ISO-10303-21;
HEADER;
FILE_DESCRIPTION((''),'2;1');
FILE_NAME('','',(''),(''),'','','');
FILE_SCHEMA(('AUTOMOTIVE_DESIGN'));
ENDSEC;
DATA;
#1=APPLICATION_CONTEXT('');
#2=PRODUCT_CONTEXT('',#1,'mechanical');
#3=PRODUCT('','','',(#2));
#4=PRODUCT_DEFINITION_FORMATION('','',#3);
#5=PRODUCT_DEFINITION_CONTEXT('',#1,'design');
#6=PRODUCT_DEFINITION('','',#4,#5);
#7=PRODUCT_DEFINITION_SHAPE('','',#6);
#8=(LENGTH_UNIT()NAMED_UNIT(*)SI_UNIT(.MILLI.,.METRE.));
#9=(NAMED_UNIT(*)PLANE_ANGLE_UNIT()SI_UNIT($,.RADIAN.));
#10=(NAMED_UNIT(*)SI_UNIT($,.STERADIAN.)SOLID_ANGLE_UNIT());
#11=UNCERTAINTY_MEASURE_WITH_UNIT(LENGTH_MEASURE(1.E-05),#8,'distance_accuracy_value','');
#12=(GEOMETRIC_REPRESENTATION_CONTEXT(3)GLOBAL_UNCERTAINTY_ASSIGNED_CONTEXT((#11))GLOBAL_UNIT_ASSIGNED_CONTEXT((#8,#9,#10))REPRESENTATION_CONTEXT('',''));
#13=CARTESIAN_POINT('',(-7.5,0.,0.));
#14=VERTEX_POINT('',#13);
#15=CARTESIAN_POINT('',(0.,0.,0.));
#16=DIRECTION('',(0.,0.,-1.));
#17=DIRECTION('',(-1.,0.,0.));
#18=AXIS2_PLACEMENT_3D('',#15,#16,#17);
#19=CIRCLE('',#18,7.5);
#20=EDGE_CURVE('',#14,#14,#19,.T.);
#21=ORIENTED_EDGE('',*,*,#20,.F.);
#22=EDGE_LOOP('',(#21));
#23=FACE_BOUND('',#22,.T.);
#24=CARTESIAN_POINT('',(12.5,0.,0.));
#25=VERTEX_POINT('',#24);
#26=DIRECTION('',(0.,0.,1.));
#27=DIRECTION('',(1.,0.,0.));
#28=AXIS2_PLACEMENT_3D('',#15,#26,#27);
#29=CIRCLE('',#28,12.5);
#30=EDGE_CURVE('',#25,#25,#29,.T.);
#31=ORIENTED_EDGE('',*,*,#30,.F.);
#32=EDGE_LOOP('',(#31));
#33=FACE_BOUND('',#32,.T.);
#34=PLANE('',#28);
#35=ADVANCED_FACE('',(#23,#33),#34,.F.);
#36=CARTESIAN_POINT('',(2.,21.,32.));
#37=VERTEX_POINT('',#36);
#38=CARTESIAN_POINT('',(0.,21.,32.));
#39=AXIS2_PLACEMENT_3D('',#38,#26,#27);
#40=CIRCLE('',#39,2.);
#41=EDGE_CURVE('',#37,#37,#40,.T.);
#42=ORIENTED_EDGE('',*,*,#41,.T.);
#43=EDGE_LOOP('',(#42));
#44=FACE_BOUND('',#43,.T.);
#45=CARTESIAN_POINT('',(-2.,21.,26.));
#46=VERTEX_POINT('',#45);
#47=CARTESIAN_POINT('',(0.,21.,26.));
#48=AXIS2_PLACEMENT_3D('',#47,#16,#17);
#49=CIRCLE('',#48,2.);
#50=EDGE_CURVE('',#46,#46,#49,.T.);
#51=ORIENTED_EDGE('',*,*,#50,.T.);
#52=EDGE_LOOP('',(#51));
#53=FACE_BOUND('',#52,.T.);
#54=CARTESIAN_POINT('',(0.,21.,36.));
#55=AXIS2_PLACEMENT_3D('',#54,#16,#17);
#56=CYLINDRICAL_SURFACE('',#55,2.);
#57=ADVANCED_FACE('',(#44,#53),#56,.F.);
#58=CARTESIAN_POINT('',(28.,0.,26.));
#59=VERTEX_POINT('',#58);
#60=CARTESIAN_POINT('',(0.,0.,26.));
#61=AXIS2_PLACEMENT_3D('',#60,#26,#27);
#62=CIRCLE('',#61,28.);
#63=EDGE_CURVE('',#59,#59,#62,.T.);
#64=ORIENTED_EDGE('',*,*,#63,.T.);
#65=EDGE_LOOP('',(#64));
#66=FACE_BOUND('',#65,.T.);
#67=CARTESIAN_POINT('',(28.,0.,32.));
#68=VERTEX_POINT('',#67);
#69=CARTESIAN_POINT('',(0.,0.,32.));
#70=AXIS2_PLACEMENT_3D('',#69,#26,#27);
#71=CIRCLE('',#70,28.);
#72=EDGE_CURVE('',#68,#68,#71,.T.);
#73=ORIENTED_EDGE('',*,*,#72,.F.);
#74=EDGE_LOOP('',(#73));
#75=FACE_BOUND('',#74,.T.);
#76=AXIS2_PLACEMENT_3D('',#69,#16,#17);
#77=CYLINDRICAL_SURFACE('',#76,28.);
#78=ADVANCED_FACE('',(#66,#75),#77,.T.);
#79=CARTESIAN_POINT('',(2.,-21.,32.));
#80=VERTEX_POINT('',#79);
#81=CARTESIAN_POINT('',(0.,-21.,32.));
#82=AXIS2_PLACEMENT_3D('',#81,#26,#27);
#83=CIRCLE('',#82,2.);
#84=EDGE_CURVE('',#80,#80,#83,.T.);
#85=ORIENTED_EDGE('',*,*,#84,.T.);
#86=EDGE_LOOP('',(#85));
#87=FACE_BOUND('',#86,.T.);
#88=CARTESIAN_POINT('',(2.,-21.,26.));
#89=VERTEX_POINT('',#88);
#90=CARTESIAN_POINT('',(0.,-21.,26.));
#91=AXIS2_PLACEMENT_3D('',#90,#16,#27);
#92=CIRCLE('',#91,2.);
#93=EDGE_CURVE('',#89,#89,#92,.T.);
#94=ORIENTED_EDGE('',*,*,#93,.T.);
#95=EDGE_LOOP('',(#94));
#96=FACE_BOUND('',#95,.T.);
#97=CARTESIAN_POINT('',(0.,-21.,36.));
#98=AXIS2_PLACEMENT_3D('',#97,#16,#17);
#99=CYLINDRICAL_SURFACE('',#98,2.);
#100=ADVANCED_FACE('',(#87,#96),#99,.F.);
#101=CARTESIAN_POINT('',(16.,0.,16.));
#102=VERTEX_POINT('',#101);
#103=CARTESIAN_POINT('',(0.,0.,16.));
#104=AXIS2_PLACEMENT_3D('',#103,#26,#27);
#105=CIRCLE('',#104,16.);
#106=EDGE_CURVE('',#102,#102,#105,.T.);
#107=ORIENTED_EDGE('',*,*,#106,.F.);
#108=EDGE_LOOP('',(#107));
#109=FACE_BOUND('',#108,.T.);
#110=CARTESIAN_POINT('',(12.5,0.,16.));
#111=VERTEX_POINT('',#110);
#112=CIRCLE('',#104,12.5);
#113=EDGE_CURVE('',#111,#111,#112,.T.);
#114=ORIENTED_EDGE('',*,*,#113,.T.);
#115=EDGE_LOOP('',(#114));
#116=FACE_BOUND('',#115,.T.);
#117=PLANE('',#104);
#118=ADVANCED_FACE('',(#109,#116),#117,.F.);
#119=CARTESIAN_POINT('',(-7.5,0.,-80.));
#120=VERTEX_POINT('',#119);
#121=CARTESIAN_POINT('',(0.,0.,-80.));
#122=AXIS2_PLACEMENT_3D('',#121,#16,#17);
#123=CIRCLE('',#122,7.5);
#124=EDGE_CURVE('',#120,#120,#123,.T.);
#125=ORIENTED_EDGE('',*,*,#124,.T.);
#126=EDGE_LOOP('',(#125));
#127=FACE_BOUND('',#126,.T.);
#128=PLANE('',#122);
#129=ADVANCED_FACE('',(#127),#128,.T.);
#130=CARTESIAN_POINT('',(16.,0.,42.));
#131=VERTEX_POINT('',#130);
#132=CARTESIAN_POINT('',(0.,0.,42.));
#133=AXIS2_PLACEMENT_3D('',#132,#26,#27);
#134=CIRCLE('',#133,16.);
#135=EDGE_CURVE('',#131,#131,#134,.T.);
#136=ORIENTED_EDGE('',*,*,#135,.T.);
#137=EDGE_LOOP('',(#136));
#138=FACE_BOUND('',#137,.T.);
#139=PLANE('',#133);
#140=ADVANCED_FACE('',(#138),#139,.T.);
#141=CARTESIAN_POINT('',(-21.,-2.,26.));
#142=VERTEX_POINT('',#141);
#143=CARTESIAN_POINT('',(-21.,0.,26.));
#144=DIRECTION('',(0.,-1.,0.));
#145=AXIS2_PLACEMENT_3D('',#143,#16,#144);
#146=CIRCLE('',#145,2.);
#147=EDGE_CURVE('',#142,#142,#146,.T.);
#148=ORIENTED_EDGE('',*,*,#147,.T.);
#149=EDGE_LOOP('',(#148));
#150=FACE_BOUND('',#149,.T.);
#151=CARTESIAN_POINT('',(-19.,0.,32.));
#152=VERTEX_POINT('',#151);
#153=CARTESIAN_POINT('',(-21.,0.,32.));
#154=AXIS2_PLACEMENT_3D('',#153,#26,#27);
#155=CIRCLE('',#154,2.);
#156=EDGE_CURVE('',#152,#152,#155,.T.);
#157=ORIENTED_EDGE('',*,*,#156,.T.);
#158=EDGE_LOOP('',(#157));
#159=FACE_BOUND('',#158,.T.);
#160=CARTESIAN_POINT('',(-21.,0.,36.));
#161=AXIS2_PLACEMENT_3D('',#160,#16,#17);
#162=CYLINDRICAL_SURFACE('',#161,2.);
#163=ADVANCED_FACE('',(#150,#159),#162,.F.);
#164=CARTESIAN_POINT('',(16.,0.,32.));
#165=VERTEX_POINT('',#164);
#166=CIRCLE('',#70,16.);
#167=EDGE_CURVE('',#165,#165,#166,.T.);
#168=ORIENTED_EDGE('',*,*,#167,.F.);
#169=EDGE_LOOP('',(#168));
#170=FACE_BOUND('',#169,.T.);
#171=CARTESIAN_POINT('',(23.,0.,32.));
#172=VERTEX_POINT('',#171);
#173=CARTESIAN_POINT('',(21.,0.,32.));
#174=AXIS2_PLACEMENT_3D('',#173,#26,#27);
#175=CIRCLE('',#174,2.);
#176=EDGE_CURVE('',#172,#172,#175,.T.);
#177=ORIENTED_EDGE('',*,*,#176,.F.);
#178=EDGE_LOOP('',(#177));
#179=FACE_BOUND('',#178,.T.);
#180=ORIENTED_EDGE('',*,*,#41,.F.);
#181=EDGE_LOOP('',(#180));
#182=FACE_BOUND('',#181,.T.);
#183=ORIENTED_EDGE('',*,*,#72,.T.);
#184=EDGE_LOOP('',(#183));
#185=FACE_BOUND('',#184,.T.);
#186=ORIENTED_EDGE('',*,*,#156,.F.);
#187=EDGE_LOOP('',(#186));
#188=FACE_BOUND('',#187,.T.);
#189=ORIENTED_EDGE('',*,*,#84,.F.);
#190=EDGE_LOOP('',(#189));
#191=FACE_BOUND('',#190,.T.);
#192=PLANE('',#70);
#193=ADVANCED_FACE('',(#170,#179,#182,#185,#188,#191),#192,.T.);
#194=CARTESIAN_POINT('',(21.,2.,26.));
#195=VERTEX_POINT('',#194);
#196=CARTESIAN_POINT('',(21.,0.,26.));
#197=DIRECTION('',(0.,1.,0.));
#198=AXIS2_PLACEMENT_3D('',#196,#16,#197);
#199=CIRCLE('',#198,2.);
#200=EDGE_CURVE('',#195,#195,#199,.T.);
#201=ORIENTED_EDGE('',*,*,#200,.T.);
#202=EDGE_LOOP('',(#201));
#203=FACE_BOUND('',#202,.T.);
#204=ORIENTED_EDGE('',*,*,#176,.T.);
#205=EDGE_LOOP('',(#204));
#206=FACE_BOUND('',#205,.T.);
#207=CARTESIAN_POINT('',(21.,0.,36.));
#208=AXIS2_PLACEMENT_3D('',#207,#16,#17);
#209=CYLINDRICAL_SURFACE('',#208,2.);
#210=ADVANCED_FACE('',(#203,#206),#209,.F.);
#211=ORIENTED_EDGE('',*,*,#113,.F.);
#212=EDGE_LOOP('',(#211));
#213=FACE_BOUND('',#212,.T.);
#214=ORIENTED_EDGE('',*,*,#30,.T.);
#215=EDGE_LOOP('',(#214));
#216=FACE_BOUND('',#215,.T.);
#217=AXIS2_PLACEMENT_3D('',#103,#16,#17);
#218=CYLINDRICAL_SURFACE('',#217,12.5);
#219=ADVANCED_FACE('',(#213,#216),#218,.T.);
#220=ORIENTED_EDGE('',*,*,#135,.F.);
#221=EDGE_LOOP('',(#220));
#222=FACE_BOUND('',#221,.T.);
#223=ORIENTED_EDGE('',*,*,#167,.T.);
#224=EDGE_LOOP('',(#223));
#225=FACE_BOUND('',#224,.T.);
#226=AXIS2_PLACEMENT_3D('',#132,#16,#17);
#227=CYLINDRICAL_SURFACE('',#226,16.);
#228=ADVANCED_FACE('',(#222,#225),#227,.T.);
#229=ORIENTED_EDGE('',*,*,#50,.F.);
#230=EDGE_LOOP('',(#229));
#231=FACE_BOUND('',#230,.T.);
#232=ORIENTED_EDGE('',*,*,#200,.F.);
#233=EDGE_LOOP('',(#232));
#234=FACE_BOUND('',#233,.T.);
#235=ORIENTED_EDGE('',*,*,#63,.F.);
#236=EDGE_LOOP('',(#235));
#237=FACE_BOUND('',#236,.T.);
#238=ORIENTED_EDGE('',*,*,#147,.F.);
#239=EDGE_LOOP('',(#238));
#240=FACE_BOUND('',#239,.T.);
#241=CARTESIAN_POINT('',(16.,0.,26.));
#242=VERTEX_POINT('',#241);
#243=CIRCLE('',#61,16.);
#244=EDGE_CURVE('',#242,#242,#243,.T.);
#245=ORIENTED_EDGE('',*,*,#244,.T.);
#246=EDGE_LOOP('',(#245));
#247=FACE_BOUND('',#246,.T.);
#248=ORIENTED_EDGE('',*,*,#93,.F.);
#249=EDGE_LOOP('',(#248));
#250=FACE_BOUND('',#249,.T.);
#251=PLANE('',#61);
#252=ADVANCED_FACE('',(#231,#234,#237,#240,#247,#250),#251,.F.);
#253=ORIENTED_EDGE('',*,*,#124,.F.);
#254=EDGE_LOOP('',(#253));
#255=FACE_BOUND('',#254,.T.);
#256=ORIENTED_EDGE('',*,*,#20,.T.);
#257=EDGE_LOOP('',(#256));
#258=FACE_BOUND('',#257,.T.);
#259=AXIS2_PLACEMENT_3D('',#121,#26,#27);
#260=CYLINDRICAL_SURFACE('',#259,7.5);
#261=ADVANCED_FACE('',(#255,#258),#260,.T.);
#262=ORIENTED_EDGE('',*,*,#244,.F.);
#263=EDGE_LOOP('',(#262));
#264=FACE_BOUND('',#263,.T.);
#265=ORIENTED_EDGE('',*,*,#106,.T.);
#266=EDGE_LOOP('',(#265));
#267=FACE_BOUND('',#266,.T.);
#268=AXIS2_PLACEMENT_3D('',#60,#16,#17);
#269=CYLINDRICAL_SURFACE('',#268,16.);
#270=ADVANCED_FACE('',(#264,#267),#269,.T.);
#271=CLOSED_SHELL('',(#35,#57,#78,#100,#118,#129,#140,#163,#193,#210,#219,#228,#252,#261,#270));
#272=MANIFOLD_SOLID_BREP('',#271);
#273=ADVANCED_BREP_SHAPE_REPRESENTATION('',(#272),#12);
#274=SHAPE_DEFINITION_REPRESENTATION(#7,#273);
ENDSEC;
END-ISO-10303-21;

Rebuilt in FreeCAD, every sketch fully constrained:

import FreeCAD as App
import Part
import Sketcher
Q = App.Units.Quantity

doc = App.newDocument("Part")
body = doc.addObject("PartDesign::Body", "Body")

# Sketch on XY plane
sketch1 = doc.addObject("Sketcher::SketchObject", "Sketch")
body.addObject(sketch1)
sketch1.AttachmentSupport = (doc.XY_Plane, [""])
sketch1.MapMode = "FlatFace"
sketch1.addGeometry(Part.Circle(App.Vector(0, 0, 0), App.Vector(0, 0, 1), 12), False)
sketch1.addConstraint(Sketcher.Constraint("Coincident", 0, 3, -1, 1))
sketch1.addConstraint(Sketcher.Constraint("Diameter", 0, Q("25 mm")))
pad1 = doc.addObject("PartDesign::Pad", "Pad")
body.addObject(pad1)
pad1.Profile = sketch1
pad1.Length = 16

# Sketch on XY plane
sketch2 = doc.addObject("Sketcher::SketchObject", "Sketch001")
body.addObject(sketch2)
sketch2.AttachmentSupport = (doc.XY_Plane, [""])
sketch2.MapMode = "FlatFace"
sketch2.AttachmentOffset = App.Placement(App.Vector(0, 0, 16), App.Rotation())
sketch2.addGeometry(Part.Circle(App.Vector(0, 0, 0), App.Vector(0, 0, 1), 16), False)
sketch2.addConstraint(Sketcher.Constraint("Coincident", 0, 3, -1, 1))
sketch2.addConstraint(Sketcher.Constraint("Diameter", 0, Q("32 mm")))
pad2 = doc.addObject("PartDesign::Pad", "Pad001")
body.addObject(pad2)
pad2.Profile = sketch2
pad2.Length = 10

# Sketch on XY plane
sketch3 = doc.addObject("Sketcher::SketchObject", "Sketch002")
body.addObject(sketch3)
sketch3.AttachmentSupport = (doc.XY_Plane, [""])
sketch3.MapMode = "FlatFace"
sketch3.AttachmentOffset = App.Placement(App.Vector(0, 0, 26), App.Rotation())
sketch3.addGeometry(Part.Circle(App.Vector(0, 0, 0), App.Vector(0, 0, 1), 28), False)
sketch3.addConstraint(Sketcher.Constraint("Coincident", 0, 3, -1, 1))
sketch3.addConstraint(Sketcher.Constraint("Diameter", 0, Q("56 mm")))
pad3 = doc.addObject("PartDesign::Pad", "Pad002")
body.addObject(pad3)
pad3.Profile = sketch3
pad3.Length = 6

# Sketch on XY plane
sketch4 = doc.addObject("Sketcher::SketchObject", "Sketch003")
body.addObject(sketch4)
sketch4.AttachmentSupport = (doc.XY_Plane, [""])
sketch4.MapMode = "FlatFace"
sketch4.AttachmentOffset = App.Placement(App.Vector(0, 0, 26), App.Rotation())
sketch4.addGeometry(Part.Circle(App.Vector(0, 21, 0), App.Vector(0, 0, 1), 2), False)
sketch4.addConstraint(Sketcher.Constraint("PointOnObject", 0, 3, -2))
sketch4.addConstraint(Sketcher.Constraint("Diameter", 0, Q("4 mm")))
sketch4.addConstraint(Sketcher.Constraint("DistanceY", -1, 1, 0, 3, Q("21 mm")))
pocket1 = doc.addObject("PartDesign::Pocket", "Pocket")
body.addObject(pocket1)
pocket1.Profile = sketch4
pocket1.Length = 10
pocket1.Reversed = True
doc.recompute()

polarpattern = doc.addObject("PartDesign::PolarPattern", "PolarPattern")
body.addObject(polarpattern)
polarpattern.Originals = [pocket1]
polarpattern.Axis = (doc.Z_Axis, [""])
polarpattern.Angle = 360
polarpattern.Occurrences = 4
body.Tip = polarpattern

# Sketch on XY plane
sketch5 = doc.addObject("Sketcher::SketchObject", "Sketch004")
body.addObject(sketch5)
sketch5.AttachmentSupport = (doc.XY_Plane, [""])
sketch5.MapMode = "FlatFace"
sketch5.AttachmentOffset = App.Placement(App.Vector(0, 0, 32), App.Rotation())
sketch5.addGeometry(Part.Circle(App.Vector(0, 0, 0), App.Vector(0, 0, 1), 16), False)
sketch5.addConstraint(Sketcher.Constraint("Coincident", 0, 3, -1, 1))
sketch5.addConstraint(Sketcher.Constraint("Diameter", 0, Q("32 mm")))
pad4 = doc.addObject("PartDesign::Pad", "Pad003")
body.addObject(pad4)
pad4.Profile = sketch5
pad4.Length = 10

# Sketch on XY plane
sketch6 = doc.addObject("Sketcher::SketchObject", "Sketch005")
body.addObject(sketch6)
sketch6.AttachmentSupport = (doc.XY_Plane, [""])
sketch6.MapMode = "FlatFace"
sketch6.addGeometry(Part.Circle(App.Vector(0, 0, 0), App.Vector(0, 0, 1), 8), False)
sketch6.addConstraint(Sketcher.Constraint("Coincident", 0, 3, -1, 1))
sketch6.addConstraint(Sketcher.Constraint("Diameter", 0, Q("15 mm")))
pad5 = doc.addObject("PartDesign::Pad", "Pad004")
body.addObject(pad5)
pad5.Profile = sketch6
pad5.Length = 80
pad5.Reversed = True

doc.recompute()
